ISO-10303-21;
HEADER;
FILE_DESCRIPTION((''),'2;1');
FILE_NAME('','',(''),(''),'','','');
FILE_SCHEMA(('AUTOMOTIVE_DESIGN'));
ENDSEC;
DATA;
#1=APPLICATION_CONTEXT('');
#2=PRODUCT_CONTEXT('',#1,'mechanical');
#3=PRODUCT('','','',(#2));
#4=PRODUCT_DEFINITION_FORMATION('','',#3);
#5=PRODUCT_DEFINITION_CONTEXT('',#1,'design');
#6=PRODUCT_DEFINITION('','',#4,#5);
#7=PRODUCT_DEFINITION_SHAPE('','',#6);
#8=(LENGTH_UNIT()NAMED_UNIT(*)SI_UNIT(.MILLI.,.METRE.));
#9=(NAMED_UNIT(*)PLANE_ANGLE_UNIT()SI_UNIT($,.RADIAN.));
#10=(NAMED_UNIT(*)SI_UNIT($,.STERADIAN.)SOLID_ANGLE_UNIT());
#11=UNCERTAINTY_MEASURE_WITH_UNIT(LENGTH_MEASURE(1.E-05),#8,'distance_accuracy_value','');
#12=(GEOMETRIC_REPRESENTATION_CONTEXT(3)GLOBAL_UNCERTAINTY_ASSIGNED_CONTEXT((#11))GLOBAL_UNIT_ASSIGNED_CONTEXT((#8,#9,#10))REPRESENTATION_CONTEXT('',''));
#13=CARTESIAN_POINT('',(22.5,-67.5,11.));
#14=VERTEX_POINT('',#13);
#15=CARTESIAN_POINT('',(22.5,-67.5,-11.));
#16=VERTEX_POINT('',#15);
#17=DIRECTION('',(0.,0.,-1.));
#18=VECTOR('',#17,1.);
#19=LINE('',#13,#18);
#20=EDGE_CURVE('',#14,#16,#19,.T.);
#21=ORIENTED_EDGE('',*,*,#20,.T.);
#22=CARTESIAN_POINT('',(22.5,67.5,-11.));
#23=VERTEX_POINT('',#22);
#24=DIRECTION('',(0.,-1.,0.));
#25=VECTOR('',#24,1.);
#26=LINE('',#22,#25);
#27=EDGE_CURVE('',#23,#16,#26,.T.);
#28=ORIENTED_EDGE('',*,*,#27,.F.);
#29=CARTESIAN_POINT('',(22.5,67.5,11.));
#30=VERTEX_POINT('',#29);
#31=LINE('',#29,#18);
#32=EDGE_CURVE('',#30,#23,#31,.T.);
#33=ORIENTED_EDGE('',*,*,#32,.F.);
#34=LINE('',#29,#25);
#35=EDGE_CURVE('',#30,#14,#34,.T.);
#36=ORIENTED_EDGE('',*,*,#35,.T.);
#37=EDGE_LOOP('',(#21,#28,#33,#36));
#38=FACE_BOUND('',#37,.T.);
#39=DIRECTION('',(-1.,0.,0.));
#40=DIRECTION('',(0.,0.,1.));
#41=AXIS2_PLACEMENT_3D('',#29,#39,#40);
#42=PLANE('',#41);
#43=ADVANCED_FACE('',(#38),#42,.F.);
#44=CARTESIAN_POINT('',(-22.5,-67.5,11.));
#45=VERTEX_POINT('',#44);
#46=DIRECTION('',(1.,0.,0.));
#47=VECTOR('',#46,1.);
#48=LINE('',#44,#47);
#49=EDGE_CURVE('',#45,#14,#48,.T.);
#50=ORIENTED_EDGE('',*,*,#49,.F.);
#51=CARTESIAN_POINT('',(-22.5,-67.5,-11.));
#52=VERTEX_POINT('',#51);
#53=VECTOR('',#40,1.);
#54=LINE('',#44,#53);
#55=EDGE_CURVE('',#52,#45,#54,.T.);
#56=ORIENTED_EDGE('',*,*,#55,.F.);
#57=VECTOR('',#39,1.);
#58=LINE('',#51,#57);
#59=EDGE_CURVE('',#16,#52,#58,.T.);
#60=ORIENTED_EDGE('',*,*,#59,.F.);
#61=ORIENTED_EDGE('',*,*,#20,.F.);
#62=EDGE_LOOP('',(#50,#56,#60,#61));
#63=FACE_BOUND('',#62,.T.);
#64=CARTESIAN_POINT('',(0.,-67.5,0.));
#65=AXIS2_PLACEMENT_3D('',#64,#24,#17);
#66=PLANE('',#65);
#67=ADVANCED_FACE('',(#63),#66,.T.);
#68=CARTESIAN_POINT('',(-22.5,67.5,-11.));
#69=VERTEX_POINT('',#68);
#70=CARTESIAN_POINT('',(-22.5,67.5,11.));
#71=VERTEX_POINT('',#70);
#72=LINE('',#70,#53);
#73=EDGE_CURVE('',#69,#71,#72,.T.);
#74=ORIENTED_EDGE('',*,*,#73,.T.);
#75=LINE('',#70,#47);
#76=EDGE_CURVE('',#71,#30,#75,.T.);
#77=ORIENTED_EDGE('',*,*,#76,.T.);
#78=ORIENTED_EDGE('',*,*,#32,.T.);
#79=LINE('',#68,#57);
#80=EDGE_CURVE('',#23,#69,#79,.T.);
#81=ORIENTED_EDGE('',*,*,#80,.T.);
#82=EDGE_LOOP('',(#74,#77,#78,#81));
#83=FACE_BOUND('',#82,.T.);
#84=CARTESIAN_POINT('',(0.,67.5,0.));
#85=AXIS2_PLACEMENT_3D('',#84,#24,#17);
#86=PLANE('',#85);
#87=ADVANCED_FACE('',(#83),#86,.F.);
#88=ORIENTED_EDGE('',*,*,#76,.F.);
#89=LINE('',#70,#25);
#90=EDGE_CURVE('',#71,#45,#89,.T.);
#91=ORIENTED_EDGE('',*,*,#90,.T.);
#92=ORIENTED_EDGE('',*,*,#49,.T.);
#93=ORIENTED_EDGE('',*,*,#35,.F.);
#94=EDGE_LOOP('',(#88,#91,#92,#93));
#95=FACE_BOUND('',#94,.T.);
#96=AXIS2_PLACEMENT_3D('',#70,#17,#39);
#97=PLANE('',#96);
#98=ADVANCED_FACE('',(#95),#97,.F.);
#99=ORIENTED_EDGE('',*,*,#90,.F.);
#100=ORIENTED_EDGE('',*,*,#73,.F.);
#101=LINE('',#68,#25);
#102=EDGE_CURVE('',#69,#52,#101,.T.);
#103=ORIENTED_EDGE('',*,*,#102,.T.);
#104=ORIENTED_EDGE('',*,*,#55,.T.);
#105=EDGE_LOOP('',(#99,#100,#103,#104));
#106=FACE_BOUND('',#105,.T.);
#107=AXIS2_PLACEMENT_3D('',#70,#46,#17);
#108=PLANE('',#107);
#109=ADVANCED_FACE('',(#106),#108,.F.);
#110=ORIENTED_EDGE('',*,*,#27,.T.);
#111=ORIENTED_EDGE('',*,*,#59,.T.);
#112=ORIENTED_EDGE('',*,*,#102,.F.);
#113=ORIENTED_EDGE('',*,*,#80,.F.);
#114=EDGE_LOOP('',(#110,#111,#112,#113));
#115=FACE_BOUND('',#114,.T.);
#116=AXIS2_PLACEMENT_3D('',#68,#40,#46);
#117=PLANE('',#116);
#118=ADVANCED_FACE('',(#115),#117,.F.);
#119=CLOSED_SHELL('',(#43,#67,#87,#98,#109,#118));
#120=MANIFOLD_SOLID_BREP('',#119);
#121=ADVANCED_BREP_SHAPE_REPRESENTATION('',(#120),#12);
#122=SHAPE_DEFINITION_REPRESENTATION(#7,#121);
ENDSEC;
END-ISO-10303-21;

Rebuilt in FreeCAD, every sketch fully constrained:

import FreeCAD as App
import Part
import Sketcher
from FreeCAD import Vector

doc = App.newDocument("Part")
params = doc.addObject("Spreadsheet::Sheet", "Params")
for row, (alias, value) in enumerate([
    ("sketch1_width", "45 mm"),
    ("sketch1_height", "22 mm"),
    ("pad1_length", "135 mm"),
], start=1):
    params.set(f"A{row}", alias)
    params.set(f"B{row}", "=" + value)
    params.setAlias(f"B{row}", alias)

body = doc.addObject("PartDesign::Body", "Body")

# Sketch on XZ plane
sketch1 = doc.addObject("Sketcher::SketchObject", "Sketch")
body.addObject(sketch1)
sketch1.AttachmentSupport = (doc.XZ_Plane, [""])
sketch1.MapMode = "FlatFace"
sketch1.addGeometry([
    Part.LineSegment(Vector(-22, -11, 0), Vector(-22, 11, 0)),
    Part.LineSegment(Vector(-22, 11, 0), Vector(22, 11, 0)),
    Part.LineSegment(Vector(22, 11, 0), Vector(22, -11, 0)),
    Part.LineSegment(Vector(22, -11, 0), Vector(-22, -11, 0)),
], False)
sketch1.addConstraint([
    Sketcher.Constraint("Coincident", 0, 2, 1, 1),
    Sketcher.Constraint("Coincident", 1, 2, 2, 1),
    Sketcher.Constraint("Coincident", 2, 2, 3, 1),
    Sketcher.Constraint("Coincident", 3, 2, 0, 1),
    Sketcher.Constraint("Vertical", 0),
    Sketcher.Constraint("Horizontal", 1),
    Sketcher.Constraint("Vertical", 2),
    Sketcher.Constraint("Horizontal", 3),
    Sketcher.Constraint("Symmetric", 0, 2, 2, 2, -1, 1),
    Sketcher.Constraint("DistanceX", 1, 1, 1, 2, 45.0),
    Sketcher.Constraint("DistanceY", 0, 1, 0, 2, 22.0),
])
sketch1.setExpression("Constraints[9]", "Params.sketch1_width")
sketch1.setExpression("Constraints[10]", "Params.sketch1_height")
pad1 = doc.addObject("PartDesign::Pad", "Pad")
body.addObject(pad1)
pad1.Profile = sketch1
pad1.setExpression("Length", "Params.pad1_length")
pad1.Midplane = True

doc.recompute()
